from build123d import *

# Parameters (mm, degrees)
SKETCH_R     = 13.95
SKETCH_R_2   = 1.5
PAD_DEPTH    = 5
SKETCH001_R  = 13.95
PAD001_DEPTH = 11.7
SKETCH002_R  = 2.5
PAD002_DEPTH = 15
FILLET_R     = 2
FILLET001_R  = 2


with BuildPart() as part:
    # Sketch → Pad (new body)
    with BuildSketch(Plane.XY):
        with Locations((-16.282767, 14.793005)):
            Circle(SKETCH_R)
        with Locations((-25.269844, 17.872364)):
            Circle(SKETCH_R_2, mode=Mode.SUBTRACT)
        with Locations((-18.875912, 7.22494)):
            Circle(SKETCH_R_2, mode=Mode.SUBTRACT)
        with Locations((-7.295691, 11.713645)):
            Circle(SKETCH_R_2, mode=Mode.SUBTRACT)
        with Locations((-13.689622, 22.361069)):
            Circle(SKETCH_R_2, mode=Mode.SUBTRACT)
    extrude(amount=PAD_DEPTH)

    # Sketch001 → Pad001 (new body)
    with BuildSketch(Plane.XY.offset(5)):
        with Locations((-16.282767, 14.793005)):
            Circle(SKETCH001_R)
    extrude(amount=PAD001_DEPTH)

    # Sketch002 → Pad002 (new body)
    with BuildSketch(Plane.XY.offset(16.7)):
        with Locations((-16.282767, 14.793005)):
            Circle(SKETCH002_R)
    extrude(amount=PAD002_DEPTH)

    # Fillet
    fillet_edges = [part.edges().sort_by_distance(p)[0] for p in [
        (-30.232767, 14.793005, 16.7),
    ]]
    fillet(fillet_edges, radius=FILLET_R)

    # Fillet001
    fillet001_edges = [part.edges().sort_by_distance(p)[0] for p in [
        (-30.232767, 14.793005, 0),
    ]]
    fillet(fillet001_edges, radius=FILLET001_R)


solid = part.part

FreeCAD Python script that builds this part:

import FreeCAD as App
import Part
import Sketcher
Q = App.Units.Quantity


def edges_at(feature, points):
    """Names of the edges that pass closest to the given points."""
    edges = feature.Shape.Edges
    near = lambda p: min(range(len(edges)), key=lambda i: edges[i].distToShape(Part.Vertex(*p))[0])
    return sorted({f"Edge{near(p) + 1}" for p in points})

doc = App.newDocument("Part")
body = doc.addObject("PartDesign::Body", "Body")

# Sketch on XY plane
sketch1 = doc.addObject("Sketcher::SketchObject", "Sketch")
body.addObject(sketch1)
sketch1.AttachmentSupport = (doc.XY_Plane, [""])
sketch1.MapMode = "FlatFace"
sketch1.addGeometry([
    Part.Circle(App.Vector(-16.3, 14.8, 0), App.Vector(0, 0, 1), 13.9),  # 0
    Part.Circle(App.Vector(-18.9, 7.2, 0), App.Vector(0, 0, 1), 1.5),  # 1
    Part.Circle(App.Vector(-7.3, 11.7, 0), App.Vector(0, 0, 1), 1.5),  # 2
    Part.Circle(App.Vector(-25.3, 17.9, 0), App.Vector(0, 0, 1), 1.5),  # 3
    Part.Circle(App.Vector(-13.7, 22.4, 0), App.Vector(0, 0, 1), 1.5),  # 4
], False)
sketch1.addConstraint([
    Sketcher.Constraint("Equal", 1, 2),
    Sketcher.Constraint("Equal", 2, 3),
    Sketcher.Constraint("Equal", 3, 4),
    Sketcher.Constraint("Diameter", 1, Q("3 mm")),
    Sketcher.Constraint("Diameter", 0, Q("27.9 mm")),
    Sketcher.Constraint("DistanceX", 1, 3, -1, 1, Q("18.875912 mm")),
    Sketcher.Constraint("DistanceY", -1, 1, 1, 3, Q("7.22494 mm")),
    Sketcher.Constraint("DistanceX", 2, 3, -1, 1, Q("7.295691 mm")),
    Sketcher.Constraint("DistanceY", -1, 1, 4, 3, Q("22.361069 mm")),
    Sketcher.Constraint("DistanceY", 2, 3, 0, 3, Q("3.07936 mm")),
    Sketcher.Constraint("DistanceY", 0, 3, 3, 3, Q("3.079359 mm")),
    Sketcher.Constraint("DistanceX", 3, 3, 1, 3, Q("6.393932 mm")),
    Sketcher.Constraint("DistanceX", 4, 3, 2, 3, Q("6.393931 mm")),
    Sketcher.Constraint("DistanceX", 0, 3, -1, 1, Q("16.282767 mm")),
    Sketcher.Constraint("DistanceY", -1, 1, 0, 3, Q("14.793005 mm")),
])
pad1 = doc.addObject("PartDesign::Pad", "Pad")
body.addObject(pad1)
pad1.Profile = sketch1
pad1.Length = 5

# Sketch on XY plane
sketch2 = doc.addObject("Sketcher::SketchObject", "Sketch001")
body.addObject(sketch2)
sketch2.AttachmentSupport = (doc.XY_Plane, [""])
sketch2.MapMode = "FlatFace"
sketch2.AttachmentOffset = App.Placement(App.Vector(0, 0, 5), App.Rotation())
sketch2.addGeometry(Part.Circle(App.Vector(-16, 15, 0), App.Vector(0, 0, 1), 14), False)
sketch2.addConstraint([
    Sketcher.Constraint("Diameter", 0, Q("27.9 mm")),
    Sketcher.Constraint("DistanceX", 0, 3, -1, 1, Q("16.282767 mm")),
    Sketcher.Constraint("DistanceY", -1, 1, 0, 3, Q("14.793005 mm")),
])
pad2 = doc.addObject("PartDesign::Pad", "Pad001")
body.addObject(pad2)
pad2.Profile = sketch2
pad2.Length = 11.7

# Sketch on XY plane
sketch3 = doc.addObject("Sketcher::SketchObject", "Sketch002")
body.addObject(sketch3)
sketch3.AttachmentSupport = (doc.XY_Plane, [""])
sketch3.MapMode = "FlatFace"
sketch3.AttachmentOffset = App.Placement(App.Vector(0, 0, 16.7), App.Rotation())
sketch3.addGeometry(Part.Circle(App.Vector(-16.3, 14.8, 0), App.Vector(0, 0, 1), 2.5), False)
sketch3.addConstraint([
    Sketcher.Constraint("Diameter", 0, Q("5 mm")),
    Sketcher.Constraint("DistanceX", 0, 3, -1, 1, Q("16.282767 mm")),
    Sketcher.Constraint("DistanceY", -1, 1, 0, 3, Q("14.793005 mm")),
])
pad3 = doc.addObject("PartDesign::Pad", "Pad002")
body.addObject(pad3)
pad3.Profile = sketch3
pad3.Length = 15
doc.recompute()

fillet = doc.addObject("PartDesign::Fillet", "Fillet")
body.addObject(fillet)
fillet.Base = (pad3, edges_at(pad3, [(-30.233, 14.793, 16.7)]))
fillet.Radius = 2
doc.recompute()

fillet2 = doc.addObject("PartDesign::Fillet", "Fillet001")
body.addObject(fillet2)
fillet2.Base = (fillet, edges_at(fillet, [(-30.233, 14.793, 0)]))
fillet2.Radius = 2

doc.recompute()
